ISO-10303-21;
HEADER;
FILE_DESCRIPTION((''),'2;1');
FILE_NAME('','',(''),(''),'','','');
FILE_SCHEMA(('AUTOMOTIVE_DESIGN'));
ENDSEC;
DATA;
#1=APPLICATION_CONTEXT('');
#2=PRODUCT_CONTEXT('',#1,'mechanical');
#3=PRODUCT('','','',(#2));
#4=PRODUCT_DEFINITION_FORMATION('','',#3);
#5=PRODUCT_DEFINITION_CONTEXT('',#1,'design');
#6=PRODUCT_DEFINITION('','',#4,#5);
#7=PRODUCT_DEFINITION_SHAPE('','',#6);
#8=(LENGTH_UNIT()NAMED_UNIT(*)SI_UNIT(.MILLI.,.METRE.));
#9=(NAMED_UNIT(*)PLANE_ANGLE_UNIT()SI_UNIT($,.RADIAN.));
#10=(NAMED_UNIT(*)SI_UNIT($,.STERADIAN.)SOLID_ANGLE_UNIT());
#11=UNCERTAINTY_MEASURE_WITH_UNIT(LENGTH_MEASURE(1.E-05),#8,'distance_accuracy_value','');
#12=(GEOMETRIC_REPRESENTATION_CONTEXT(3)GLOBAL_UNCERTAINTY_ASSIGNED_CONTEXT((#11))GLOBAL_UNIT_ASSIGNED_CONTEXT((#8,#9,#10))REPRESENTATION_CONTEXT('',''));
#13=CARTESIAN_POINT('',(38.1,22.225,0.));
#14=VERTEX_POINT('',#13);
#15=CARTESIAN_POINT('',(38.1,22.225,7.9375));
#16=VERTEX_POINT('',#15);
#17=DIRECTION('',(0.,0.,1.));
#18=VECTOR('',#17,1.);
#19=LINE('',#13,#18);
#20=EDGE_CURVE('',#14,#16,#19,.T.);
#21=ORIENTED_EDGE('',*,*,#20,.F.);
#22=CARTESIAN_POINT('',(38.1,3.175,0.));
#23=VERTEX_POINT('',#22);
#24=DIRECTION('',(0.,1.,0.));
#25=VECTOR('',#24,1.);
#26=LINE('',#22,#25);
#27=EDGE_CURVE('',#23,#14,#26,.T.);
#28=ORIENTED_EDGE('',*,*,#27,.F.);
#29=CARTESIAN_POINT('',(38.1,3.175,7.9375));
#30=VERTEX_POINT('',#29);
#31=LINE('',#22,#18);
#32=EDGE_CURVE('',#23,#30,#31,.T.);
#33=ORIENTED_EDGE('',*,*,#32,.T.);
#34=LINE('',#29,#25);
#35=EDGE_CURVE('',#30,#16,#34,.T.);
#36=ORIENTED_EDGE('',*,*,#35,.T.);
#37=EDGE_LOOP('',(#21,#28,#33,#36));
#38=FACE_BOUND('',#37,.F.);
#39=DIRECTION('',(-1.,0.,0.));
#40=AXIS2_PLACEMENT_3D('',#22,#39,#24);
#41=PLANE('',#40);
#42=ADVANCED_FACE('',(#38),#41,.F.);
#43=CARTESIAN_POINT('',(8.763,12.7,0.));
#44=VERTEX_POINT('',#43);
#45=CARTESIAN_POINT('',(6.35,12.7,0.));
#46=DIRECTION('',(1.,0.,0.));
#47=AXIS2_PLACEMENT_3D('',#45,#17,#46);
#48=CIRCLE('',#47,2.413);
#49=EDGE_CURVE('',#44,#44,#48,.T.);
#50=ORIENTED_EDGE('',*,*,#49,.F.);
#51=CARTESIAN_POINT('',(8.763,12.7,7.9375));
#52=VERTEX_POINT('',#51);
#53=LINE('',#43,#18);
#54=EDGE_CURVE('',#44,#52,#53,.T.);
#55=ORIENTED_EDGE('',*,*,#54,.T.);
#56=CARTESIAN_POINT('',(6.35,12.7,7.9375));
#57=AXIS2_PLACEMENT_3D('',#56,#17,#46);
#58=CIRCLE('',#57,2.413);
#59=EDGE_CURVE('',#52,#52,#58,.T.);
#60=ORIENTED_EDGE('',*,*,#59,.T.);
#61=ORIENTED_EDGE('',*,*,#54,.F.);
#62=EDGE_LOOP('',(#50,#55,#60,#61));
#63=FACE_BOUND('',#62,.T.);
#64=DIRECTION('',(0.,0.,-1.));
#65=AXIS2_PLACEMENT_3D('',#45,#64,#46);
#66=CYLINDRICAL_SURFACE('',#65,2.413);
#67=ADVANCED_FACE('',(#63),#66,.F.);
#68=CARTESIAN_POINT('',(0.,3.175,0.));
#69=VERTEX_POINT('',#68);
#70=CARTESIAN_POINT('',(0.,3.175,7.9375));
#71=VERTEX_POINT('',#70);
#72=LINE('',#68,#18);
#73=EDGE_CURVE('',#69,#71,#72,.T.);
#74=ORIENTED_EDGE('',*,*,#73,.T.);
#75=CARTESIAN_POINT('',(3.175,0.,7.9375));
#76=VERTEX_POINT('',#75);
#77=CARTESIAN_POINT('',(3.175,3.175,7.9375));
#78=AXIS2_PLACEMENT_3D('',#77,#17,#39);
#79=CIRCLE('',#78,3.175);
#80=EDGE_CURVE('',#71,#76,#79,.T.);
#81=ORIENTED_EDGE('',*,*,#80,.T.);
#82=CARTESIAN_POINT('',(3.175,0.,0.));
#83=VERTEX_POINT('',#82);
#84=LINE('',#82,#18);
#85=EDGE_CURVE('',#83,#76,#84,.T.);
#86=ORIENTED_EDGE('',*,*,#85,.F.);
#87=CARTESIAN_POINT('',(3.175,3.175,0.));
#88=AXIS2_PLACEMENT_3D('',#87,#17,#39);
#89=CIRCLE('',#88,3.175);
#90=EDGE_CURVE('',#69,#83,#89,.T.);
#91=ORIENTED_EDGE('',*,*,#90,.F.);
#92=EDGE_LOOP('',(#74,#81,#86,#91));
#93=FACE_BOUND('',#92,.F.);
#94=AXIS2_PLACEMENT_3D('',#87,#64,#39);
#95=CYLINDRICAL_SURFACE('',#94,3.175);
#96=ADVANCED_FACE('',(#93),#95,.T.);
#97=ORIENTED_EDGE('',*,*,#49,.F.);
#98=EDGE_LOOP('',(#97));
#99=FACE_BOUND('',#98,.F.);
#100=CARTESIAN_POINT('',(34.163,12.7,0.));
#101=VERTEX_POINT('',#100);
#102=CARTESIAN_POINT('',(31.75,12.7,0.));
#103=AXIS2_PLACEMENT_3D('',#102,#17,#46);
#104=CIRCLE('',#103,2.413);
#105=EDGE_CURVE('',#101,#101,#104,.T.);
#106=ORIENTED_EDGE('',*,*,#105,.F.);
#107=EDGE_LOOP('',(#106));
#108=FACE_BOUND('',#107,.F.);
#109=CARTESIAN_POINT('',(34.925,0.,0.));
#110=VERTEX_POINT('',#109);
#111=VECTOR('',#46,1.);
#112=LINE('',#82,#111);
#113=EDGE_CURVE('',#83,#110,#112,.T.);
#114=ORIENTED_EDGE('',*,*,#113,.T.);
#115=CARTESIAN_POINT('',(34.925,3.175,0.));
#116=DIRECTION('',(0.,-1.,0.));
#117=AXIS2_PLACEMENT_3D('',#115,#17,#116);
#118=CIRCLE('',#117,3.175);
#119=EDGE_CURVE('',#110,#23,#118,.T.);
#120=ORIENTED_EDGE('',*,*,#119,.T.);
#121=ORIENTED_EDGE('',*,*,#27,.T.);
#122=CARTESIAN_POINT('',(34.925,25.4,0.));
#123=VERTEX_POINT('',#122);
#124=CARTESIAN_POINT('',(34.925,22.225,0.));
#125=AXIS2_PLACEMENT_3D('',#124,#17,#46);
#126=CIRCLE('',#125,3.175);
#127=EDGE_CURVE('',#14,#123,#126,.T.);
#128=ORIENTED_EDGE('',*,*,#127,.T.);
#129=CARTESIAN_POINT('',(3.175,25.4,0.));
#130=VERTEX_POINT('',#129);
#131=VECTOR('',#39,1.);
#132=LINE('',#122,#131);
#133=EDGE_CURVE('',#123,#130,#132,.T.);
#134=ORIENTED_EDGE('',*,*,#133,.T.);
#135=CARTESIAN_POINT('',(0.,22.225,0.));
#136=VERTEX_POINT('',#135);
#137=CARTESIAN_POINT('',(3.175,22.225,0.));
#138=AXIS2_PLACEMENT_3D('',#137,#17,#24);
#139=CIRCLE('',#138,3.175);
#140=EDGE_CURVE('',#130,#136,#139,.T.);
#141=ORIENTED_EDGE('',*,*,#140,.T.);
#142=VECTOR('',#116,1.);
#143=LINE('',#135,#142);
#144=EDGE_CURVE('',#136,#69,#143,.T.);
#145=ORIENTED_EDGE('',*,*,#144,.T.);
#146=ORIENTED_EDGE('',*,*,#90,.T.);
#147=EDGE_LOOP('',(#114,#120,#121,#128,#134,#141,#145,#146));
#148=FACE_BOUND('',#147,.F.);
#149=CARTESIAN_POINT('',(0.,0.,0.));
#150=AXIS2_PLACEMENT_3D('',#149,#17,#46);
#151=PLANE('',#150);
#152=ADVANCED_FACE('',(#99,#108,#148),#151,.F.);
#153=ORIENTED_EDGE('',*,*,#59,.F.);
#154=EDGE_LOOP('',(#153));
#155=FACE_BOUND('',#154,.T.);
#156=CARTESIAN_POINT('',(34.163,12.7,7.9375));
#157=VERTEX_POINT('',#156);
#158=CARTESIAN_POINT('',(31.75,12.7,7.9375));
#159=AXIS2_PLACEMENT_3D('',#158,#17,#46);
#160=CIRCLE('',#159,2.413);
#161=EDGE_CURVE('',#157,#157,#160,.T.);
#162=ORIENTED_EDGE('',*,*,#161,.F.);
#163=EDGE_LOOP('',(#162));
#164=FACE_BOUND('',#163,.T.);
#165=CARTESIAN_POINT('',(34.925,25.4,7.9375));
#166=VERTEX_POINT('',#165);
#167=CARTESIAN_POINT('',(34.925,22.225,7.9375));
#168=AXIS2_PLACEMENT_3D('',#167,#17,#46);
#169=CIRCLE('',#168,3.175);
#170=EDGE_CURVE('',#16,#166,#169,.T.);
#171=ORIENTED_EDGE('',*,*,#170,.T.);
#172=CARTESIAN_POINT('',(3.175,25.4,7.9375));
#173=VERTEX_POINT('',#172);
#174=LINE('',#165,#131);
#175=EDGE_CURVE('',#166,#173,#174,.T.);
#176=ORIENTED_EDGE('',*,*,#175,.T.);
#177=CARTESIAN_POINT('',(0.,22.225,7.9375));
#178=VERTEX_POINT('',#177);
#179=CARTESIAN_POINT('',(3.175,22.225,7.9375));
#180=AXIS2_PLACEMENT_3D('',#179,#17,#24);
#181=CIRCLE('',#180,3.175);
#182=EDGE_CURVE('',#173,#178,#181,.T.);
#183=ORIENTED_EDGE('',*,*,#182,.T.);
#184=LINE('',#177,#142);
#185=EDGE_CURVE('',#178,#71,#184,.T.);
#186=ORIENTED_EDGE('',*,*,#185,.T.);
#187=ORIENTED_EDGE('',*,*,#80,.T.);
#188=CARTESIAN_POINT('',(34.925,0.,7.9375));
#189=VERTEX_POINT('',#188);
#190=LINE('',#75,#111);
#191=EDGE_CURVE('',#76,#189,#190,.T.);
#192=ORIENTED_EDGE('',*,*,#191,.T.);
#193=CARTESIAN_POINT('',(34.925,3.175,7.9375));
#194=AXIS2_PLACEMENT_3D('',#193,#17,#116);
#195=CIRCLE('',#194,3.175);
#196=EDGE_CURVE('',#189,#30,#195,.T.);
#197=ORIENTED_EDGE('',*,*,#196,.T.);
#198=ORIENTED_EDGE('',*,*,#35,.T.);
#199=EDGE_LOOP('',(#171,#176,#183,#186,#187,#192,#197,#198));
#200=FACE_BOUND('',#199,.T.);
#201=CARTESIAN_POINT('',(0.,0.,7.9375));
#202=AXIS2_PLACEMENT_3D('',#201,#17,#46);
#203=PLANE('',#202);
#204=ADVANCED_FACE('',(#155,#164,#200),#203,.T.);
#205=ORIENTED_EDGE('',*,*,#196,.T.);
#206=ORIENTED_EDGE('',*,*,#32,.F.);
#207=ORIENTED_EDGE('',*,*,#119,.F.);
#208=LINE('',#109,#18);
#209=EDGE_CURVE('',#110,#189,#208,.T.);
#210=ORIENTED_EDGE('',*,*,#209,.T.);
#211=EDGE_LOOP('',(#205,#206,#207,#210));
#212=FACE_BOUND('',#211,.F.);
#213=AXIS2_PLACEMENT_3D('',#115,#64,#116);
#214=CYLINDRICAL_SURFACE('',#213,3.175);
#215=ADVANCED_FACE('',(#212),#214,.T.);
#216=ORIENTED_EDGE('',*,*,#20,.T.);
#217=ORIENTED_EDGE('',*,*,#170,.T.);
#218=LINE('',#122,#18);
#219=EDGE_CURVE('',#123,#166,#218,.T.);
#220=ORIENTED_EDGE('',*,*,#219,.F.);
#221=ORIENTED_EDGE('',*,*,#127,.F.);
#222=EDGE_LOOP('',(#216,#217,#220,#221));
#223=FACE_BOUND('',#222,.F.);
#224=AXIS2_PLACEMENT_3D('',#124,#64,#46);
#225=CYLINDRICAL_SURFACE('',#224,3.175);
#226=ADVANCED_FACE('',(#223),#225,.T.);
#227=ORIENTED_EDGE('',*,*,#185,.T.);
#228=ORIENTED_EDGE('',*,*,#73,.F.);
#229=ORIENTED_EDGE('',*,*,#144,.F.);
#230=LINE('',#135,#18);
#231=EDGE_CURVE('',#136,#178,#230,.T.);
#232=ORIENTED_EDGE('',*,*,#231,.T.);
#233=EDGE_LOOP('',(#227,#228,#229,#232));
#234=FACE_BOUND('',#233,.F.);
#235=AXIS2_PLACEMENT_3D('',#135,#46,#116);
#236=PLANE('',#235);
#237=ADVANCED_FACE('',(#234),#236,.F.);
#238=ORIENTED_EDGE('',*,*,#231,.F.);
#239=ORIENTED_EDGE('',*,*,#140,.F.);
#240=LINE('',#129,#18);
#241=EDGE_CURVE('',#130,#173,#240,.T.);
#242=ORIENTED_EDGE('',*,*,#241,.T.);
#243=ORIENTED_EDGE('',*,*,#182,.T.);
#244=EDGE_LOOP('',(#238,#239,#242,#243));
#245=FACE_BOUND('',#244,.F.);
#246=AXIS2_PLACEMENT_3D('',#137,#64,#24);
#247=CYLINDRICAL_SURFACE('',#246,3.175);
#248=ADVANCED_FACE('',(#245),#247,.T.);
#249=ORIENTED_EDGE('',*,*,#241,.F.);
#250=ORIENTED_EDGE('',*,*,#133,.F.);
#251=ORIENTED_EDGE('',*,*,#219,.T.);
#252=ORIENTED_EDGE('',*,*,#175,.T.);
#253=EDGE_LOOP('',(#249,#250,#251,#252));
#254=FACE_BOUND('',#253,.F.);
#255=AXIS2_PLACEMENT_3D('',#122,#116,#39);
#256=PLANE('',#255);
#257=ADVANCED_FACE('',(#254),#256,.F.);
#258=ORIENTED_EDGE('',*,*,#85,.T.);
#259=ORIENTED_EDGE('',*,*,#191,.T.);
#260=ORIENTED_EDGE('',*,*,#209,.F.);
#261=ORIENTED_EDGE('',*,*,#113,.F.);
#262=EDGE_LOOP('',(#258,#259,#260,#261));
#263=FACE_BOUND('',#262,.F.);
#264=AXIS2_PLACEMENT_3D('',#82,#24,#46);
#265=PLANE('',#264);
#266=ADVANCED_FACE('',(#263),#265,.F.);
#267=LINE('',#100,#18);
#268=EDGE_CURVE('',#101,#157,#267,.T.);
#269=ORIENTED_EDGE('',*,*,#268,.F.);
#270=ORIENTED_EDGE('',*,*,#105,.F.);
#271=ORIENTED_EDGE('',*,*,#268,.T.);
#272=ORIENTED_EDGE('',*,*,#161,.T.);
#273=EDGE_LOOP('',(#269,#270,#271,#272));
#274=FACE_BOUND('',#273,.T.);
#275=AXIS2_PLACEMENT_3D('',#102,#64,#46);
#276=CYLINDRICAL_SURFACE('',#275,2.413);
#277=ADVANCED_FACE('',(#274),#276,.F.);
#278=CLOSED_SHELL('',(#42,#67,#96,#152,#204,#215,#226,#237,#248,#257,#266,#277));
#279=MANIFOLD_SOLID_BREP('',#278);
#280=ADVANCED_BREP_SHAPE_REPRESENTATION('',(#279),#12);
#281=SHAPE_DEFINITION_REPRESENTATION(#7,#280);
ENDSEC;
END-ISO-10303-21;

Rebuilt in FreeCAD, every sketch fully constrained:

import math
import FreeCAD as App
import Part
import Sketcher

V = App.Vector
Q = App.Units.Quantity

doc = App.newDocument("Part")
body = doc.addObject("PartDesign::Body", "Body")

sketch1 = body.newObject("Sketcher::SketchObject", "Sketch")
sketch1.AttachmentSupport = (doc.getObject("XY_Plane"), [""])
sketch1.MapMode = "FlatFace"
sketch1.addGeometry(Part.ArcOfCircle(Part.Circle(V(3.2, 3.2, 0), V(0, 0, 1), 3.2), math.radians(180), math.radians(270)), False)
sketch1.addGeometry(Part.LineSegment(V(3.2, 0, 0), V(34.9, 0, 0)), False)
sketch1.addGeometry(Part.ArcOfCircle(Part.Circle(V(34.9, 3.2, 0), V(0, 0, 1), 3.2), math.radians(-90), math.radians(0)), False)
sketch1.addGeometry(Part.LineSegment(V(38.1, 3.2, 0), V(38.1, 22.2, 0)), False)
sketch1.addGeometry(Part.ArcOfCircle(Part.Circle(V(34.9, 22.2, 0), V(0, 0, 1), 3.2), math.radians(0), math.radians(90)), False)
sketch1.addGeometry(Part.LineSegment(V(34.9, 25.4, 0), V(3.2, 25.4, 0)), False)
sketch1.addGeometry(Part.ArcOfCircle(Part.Circle(V(3.2, 22.2, 0), V(0, 0, 1), 3.2), math.radians(90), math.radians(180)), False)
sketch1.addGeometry(Part.LineSegment(V(0, 22.2, 0), V(0, 3.2, 0)), False)
sketch1.addGeometry(Part.Circle(V(6.3, 12.7, 0), V(0, 0, 1), 2.4), False)
sketch1.addGeometry(Part.Circle(V(31.8, 12.7, 0), V(0, 0, 1), 2.4), False)
sketch1.addConstraint(Sketcher.Constraint("Tangent", 0, 2, 1, 1))
sketch1.addConstraint(Sketcher.Constraint("Tangent", 1, 2, 2, 1))
sketch1.addConstraint(Sketcher.Constraint("Tangent", 2, 2, 3, 1))
sketch1.addConstraint(Sketcher.Constraint("Tangent", 3, 2, 4, 1))
sketch1.addConstraint(Sketcher.Constraint("Tangent", 4, 2, 5, 1))
sketch1.addConstraint(Sketcher.Constraint("Tangent", 5, 2, 6, 1))
sketch1.addConstraint(Sketcher.Constraint("Tangent", 6, 2, 7, 1))
sketch1.addConstraint(Sketcher.Constraint("Tangent", 7, 2, 0, 1))
sketch1.addConstraint(Sketcher.Constraint("Horizontal", 1))
sketch1.addConstraint(Sketcher.Constraint("Vertical", 3))
sketch1.addConstraint(Sketcher.Constraint("Horizontal", 5))
sketch1.addConstraint(Sketcher.Constraint("Vertical", 7))
sketch1.addConstraint(Sketcher.Constraint("Equal", 0, 2))
sketch1.addConstraint(Sketcher.Constraint("Equal", 2, 4))
sketch1.addConstraint(Sketcher.Constraint("Equal", 4, 6))
sketch1.addConstraint(Sketcher.Constraint("Equal", 8, 9))
sketch1.addConstraint(Sketcher.Constraint("PointOnObject", 0, 2, -1))
sketch1.addConstraint(Sketcher.Constraint("PointOnObject", 6, 2, -2))
sketch1.addConstraint(Sketcher.Constraint("Horizontal", 8, 3, 9, 3))
sketch1.addConstraint(Sketcher.Constraint("Diameter", 8, Q("0.19 in")))
sketch1.addConstraint(Sketcher.Constraint("DistanceY", -1, 1, 4, 2, Q("1 in")))
sketch1.addConstraint(Sketcher.Constraint("Radius", 0, Q("0.125 in")))
sketch1.addConstraint(Sketcher.Constraint("DistanceX", 8, 3, 9, 3, Q("1 in")))
sketch1.addConstraint(Sketcher.Constraint("DistanceX", -1, 1, 2, 2, Q("1.5 in")))
sketch1.addConstraint(Sketcher.Constraint("DistanceX", -1, 1, 8, 3, Q("0.25 in")))
sketch1.addConstraint(Sketcher.Constraint("DistanceY", -1, 1, 8, 3, Q("0.5 in")))
pad1 = body.newObject("PartDesign::Pad", "Pad")
pad1.Profile = sketch1
pad1.Length = Q("0.3125 in")

doc.recompute()
